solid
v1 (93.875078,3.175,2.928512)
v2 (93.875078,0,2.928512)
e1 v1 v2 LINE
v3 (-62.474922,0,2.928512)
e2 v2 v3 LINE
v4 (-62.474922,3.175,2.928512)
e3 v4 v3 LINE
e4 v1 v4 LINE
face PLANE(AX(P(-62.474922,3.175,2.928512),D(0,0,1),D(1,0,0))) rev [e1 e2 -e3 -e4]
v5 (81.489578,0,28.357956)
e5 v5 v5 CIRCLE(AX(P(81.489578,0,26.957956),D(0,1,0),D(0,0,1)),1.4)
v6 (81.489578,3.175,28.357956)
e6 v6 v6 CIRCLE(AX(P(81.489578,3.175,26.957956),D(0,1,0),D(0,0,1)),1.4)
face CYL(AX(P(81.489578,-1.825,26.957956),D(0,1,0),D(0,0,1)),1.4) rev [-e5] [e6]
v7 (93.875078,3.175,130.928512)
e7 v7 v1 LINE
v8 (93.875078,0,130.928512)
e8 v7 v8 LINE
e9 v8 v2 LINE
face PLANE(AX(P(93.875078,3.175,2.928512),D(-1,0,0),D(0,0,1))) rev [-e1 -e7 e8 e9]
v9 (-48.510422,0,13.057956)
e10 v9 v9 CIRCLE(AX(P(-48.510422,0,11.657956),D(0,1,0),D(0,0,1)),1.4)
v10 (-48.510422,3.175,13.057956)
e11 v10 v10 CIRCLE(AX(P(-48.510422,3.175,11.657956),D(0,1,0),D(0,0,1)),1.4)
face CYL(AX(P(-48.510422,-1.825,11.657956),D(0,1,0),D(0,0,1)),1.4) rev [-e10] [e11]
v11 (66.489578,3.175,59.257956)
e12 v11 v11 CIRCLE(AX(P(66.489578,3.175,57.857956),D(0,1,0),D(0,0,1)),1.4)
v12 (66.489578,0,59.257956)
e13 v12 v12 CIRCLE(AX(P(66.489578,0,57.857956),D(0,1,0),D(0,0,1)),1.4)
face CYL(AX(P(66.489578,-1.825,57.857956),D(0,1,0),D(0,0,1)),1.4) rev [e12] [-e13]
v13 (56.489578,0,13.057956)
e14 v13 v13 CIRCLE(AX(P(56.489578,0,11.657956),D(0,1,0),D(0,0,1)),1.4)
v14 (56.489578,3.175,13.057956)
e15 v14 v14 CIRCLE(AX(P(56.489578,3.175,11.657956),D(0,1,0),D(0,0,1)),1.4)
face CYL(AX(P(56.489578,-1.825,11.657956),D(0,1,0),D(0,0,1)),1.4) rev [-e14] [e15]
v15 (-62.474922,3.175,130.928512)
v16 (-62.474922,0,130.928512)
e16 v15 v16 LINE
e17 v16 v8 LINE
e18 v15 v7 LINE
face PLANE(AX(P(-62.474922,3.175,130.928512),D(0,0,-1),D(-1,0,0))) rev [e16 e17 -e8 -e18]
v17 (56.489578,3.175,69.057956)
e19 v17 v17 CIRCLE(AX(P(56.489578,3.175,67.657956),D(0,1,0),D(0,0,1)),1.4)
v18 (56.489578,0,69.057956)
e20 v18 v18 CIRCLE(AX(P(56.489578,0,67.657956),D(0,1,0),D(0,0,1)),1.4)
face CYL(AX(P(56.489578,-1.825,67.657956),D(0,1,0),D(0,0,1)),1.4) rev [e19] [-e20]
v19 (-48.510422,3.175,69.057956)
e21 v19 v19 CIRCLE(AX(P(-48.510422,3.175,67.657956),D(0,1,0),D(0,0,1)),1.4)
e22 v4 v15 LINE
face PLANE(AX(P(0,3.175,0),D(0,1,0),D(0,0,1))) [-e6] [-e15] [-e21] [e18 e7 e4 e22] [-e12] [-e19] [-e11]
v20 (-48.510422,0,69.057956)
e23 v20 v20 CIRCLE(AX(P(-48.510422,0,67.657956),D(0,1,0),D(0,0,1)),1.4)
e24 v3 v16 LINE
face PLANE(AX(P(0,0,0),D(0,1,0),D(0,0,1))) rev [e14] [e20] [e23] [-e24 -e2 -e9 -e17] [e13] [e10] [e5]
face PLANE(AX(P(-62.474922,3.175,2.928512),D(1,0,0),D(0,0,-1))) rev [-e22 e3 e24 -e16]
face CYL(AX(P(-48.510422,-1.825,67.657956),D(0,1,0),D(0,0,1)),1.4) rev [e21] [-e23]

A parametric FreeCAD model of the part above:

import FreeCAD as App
import Part
import Sketcher
from FreeCAD import Vector
Q = App.Units.Quantity


def add_polygon(sketch, points):
    """Adds a closed chain of lines whose ends are joined by coincident constraints."""
    first, n = sketch.GeometryCount, len(points)
    for a, b in zip(points, points[1:] + points[:1]):
        sketch.addGeometry(Part.LineSegment(App.Vector(*a, 0), App.Vector(*b, 0)), False)
    for i in range(n):
        sketch.addConstraint(Sketcher.Constraint("Coincident", first + i, 2, first + (i + 1) % n, 1))

doc = App.newDocument("Part")
body = doc.addObject("PartDesign::Body", "Body")

sketch1 = body.newObject("Sketcher::SketchObject", "Sketch")
sketch1.AttachmentSupport = (doc.getObject("XZ_Plane"), [""])
sketch1.MapMode = "FlatFace"
add_polygon(sketch1, [(-62, 3), (-62, 131), (94, 131), (94, 3)])
sketch1.addConstraint(Sketcher.Constraint("Vertical", 0))
sketch1.addConstraint(Sketcher.Constraint("Horizontal", 1))
sketch1.addConstraint(Sketcher.Constraint("Vertical", 2))
sketch1.addConstraint(Sketcher.Constraint("Horizontal", 3))
sketch1.addConstraint(Sketcher.Constraint("DistanceY", 0, 1, 0, 2, Q("128 mm")))
sketch1.addConstraint(Sketcher.Constraint("DistanceX", 1, 1, 1, 2, Q("156.35 mm")))
sketch1.addConstraint(Sketcher.Constraint("DistanceX", 0, 2, -1, 1, Q("62.474922 mm")))
sketch1.addConstraint(Sketcher.Constraint("DistanceY", -1, 1, 0, 2, Q("130.928512 mm")))
pad1 = body.newObject("PartDesign::Pad", "Pad")
pad1.Profile = sketch1
pad1.Length = 3.175
pad1.Reversed = True

sketch2 = body.newObject("Sketcher::SketchObject", "Sketch001")
sketch2.AttachmentSupport = (doc.getObject("XZ_Plane"), [""])
sketch2.MapMode = "FlatFace"
sketch2.AttachmentOffset = App.Placement(Vector(0, 0, -3.175), App.Rotation())
sketch2.addGeometry(Part.Circle(Vector(56.5, 67.7, 0), Vector(0, 0, 1), 1.4), False)
sketch2.addGeometry(Part.Circle(Vector(66.5, 57.9, 0), Vector(0, 0, 1), 1.4), False)
sketch2.addGeometry(Part.Circle(Vector(81.5, 27, 0), Vector(0, 0, 1), 1.4), False)
sketch2.addGeometry(Part.Circle(Vector(56.5, 11.7, 0), Vector(0, 0, 1), 1.4), False)
sketch2.addGeometry(Part.Circle(Vector(-48.5, 11.7, 0), Vector(0, 0, 1), 1.4), False)
sketch2.addGeometry(Part.Circle(Vector(-48.5, 67.7, 0), Vector(0, 0, 1), 1.4), False)
sketch2.addConstraint(Sketcher.Constraint("Equal", 0, 1))
sketch2.addConstraint(Sketcher.Constraint("Equal", 1, 2))
sketch2.addConstraint(Sketcher.Constraint("Equal", 2, 3))
sketch2.addConstraint(Sketcher.Constraint("Equal", 3, 4))
sketch2.addConstraint(Sketcher.Constraint("Equal", 4, 5))
sketch2.addConstraint(Sketcher.Constraint("Horizontal", 3, 3, 4, 3))
sketch2.addConstraint(Sketcher.Constraint("Horizontal", 0, 3, 5, 3))
sketch2.addConstraint(Sketcher.Constraint("Vertical", 0, 3, 3, 3))
sketch2.addConstraint(Sketcher.Constraint("Vertical", 4, 3, 5, 3))
sketch2.addConstraint(Sketcher.Constraint("Diameter", 0, Q("2.8 mm")))
sketch2.addConstraint(Sketcher.Constraint("DistanceX", 0, 3, 1, 3, Q("10 mm")))
sketch2.addConstraint(Sketcher.Constraint("DistanceX", 1, 3, 2, 3, Q("15 mm")))
sketch2.addConstraint(Sketcher.Constraint("DistanceY", 3, 3, 0, 3, Q("56 mm")))
sketch2.addConstraint(Sketcher.Constraint("DistanceX", 4, 3, 3, 3, Q("105 mm")))
sketch2.addConstraint(Sketcher.Constraint("DistanceY", 1, 3, 0, 3, Q("9.8 mm")))
sketch2.addConstraint(Sketcher.Constraint("DistanceY", 2, 3, 1, 3, Q("30.9 mm")))
sketch2.addConstraint(Sketcher.Constraint("DistanceX", -1, 1, 0, 3, Q("56.489578 mm")))
sketch2.addConstraint(Sketcher.Constraint("DistanceY", -1, 1, 0, 3, Q("67.657956 mm")))
pocket1 = body.newObject("PartDesign::Pocket", "Pocket")
pocket1.Profile = sketch2
pocket1.Length = 5
pocket1.Reversed = True

doc.recompute()
